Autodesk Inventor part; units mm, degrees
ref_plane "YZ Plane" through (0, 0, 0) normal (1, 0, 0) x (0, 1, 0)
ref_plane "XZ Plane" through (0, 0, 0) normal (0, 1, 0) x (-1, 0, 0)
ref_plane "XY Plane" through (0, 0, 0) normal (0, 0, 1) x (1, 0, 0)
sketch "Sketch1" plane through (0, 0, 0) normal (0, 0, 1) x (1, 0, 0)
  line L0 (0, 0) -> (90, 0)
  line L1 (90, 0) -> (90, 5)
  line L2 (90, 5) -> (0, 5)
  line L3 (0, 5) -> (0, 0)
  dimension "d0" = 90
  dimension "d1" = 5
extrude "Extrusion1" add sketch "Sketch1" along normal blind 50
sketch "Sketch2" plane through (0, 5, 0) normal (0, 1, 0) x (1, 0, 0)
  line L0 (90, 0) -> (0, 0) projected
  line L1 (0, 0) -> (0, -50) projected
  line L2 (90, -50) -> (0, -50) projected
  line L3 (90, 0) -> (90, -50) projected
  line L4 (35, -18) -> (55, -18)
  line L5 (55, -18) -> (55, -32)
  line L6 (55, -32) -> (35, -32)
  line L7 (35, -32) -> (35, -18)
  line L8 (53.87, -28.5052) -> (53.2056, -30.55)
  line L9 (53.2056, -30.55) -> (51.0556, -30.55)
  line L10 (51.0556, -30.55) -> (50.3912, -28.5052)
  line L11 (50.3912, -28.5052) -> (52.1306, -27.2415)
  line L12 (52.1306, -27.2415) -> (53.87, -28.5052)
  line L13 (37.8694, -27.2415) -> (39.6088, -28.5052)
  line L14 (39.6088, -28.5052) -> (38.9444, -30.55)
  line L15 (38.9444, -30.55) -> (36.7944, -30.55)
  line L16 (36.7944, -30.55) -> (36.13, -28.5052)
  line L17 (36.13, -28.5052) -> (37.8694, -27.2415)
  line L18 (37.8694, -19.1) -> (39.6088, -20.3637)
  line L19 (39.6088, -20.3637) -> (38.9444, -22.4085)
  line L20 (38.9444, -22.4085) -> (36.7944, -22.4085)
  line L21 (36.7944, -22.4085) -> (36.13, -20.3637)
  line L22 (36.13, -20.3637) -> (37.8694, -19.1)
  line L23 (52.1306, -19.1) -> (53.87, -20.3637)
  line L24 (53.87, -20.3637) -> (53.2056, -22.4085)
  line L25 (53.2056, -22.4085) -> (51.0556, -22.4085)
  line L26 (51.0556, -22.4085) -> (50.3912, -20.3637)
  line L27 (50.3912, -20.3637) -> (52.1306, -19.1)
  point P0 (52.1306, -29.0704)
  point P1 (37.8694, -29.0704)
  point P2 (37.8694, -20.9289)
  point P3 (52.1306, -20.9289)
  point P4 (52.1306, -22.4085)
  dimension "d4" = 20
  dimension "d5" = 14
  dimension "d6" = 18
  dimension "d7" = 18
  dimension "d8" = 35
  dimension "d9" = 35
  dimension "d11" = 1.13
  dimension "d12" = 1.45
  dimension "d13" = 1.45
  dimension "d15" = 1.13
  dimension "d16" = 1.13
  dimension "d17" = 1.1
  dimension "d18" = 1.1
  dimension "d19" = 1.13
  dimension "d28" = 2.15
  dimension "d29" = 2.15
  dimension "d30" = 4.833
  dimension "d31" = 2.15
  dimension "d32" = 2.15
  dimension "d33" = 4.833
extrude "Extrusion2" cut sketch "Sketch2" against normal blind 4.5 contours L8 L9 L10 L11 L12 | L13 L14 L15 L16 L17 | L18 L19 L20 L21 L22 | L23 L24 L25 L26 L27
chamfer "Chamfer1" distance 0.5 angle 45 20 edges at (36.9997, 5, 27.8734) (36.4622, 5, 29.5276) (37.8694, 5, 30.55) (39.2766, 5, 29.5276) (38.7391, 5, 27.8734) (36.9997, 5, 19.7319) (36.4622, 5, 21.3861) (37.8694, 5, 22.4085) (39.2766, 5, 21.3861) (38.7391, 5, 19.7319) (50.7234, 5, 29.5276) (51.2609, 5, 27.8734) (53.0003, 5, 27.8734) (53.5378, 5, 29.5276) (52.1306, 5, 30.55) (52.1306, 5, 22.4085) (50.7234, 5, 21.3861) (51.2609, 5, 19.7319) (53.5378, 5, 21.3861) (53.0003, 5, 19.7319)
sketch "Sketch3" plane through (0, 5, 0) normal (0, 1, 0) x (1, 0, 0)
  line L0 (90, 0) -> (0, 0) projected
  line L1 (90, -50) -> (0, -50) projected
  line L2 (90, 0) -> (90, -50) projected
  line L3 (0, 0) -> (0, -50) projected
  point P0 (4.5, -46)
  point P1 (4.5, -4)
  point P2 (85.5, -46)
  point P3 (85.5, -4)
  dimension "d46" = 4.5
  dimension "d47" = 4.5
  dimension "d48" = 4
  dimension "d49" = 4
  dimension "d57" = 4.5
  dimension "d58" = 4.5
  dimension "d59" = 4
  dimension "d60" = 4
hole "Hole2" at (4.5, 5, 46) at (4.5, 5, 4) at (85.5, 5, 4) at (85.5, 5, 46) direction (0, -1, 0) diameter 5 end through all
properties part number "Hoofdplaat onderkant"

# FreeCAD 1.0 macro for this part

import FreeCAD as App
import Part
import Sketcher
Q = App.Units.Quantity


def edges_at(feature, points):
    """Names of the edges that pass closest to the given points."""
    edges = feature.Shape.Edges
    near = lambda p: min(range(len(edges)), key=lambda i: edges[i].distToShape(Part.Vertex(*p))[0])
    return sorted({f"Edge{near(p) + 1}" for p in points})

doc = App.newDocument("Part")
body = doc.addObject("PartDesign::Body", "Body")

sketch1 = doc.addObject("Sketcher::SketchObject", "Sketch")
body.addObject(sketch1)
sketch1.AttachmentSupport = (doc.XY_Plane, [""])
sketch1.MapMode = "FlatFace"
sketch1.addGeometry([
    Part.LineSegment(App.Vector(0, 5, 0), App.Vector(0, 0, 0)),
    Part.LineSegment(App.Vector(0, 0, 0), App.Vector(90, 0, 0)),
    Part.LineSegment(App.Vector(90, 0, 0), App.Vector(90, 5, 0)),
    Part.LineSegment(App.Vector(90, 5, 0), App.Vector(0, 5, 0)),
], False)
sketch1.addConstraint([
    Sketcher.Constraint("Coincident", 0, 2, 1, 1),
    Sketcher.Constraint("Coincident", 1, 2, 2, 1),
    Sketcher.Constraint("Coincident", 2, 2, 3, 1),
    Sketcher.Constraint("Coincident", 3, 2, 0, 1),
    Sketcher.Constraint("Vertical", 0),
    Sketcher.Constraint("Horizontal", 1),
    Sketcher.Constraint("Vertical", 2),
    Sketcher.Constraint("Horizontal", 3),
    Sketcher.Constraint("Coincident", 0, 2, -1, 1),
    Sketcher.Constraint("DistanceX", 1, 1, 1, 2, 90.0),
    Sketcher.Constraint("DistanceY", 0, 2, 0, 1, 5.0),
])
pad1 = doc.addObject("PartDesign::Pad", "Pad")
body.addObject(pad1)
pad1.Profile = sketch1
pad1.Length = 50

sketch2 = doc.addObject("Sketcher::SketchObject", "Sketch001")
body.addObject(sketch2)
sketch2.AttachmentSupport = (doc.XZ_Plane, [""])
sketch2.MapMode = "FlatFace"
sketch2.AttachmentOffset = App.Placement(App.Vector(0, 0, -5), App.Rotation())
sketch2.addGeometry([
    Part.LineSegment(App.Vector(53.2, 30.6, 0), App.Vector(53.9, 28.5, 0)),
    Part.LineSegment(App.Vector(53.9, 28.5, 0), App.Vector(52.1, 27.2, 0)),
    Part.LineSegment(App.Vector(52.1, 27.2, 0), App.Vector(50.4, 28.5, 0)),
    Part.LineSegment(App.Vector(50.4, 28.5, 0), App.Vector(51.1, 30.6, 0)),
    Part.LineSegment(App.Vector(51.1, 30.6, 0), App.Vector(53.2, 30.6, 0)),
    Part.LineSegment(App.Vector(39.6, 28.5, 0), App.Vector(37.9, 27.2, 0)),
    Part.LineSegment(App.Vector(37.9, 27.2, 0), App.Vector(36.1, 28.5, 0)),
    Part.LineSegment(App.Vector(36.1, 28.5, 0), App.Vector(36.8, 30.6, 0)),
    Part.LineSegment(App.Vector(36.8, 30.6, 0), App.Vector(38.9, 30.6, 0)),
    Part.LineSegment(App.Vector(38.9, 30.6, 0), App.Vector(39.6, 28.5, 0)),
    Part.LineSegment(App.Vector(39.6, 20.4, 0), App.Vector(37.9, 19.1, 0)),
    Part.LineSegment(App.Vector(37.9, 19.1, 0), App.Vector(36.1, 20.4, 0)),
    Part.LineSegment(App.Vector(36.1, 20.4, 0), App.Vector(36.8, 22.4, 0)),
    Part.LineSegment(App.Vector(36.8, 22.4, 0), App.Vector(38.9, 22.4, 0)),
    Part.LineSegment(App.Vector(38.9, 22.4, 0), App.Vector(39.6, 20.4, 0)),
    Part.LineSegment(App.Vector(53.9, 20.4, 0), App.Vector(52.1, 19.1, 0)),
    Part.LineSegment(App.Vector(52.1, 19.1, 0), App.Vector(50.4, 20.4, 0)),
    Part.LineSegment(App.Vector(50.4, 20.4, 0), App.Vector(51.1, 22.4, 0)),
    Part.LineSegment(App.Vector(51.1, 22.4, 0), App.Vector(53.2, 22.4, 0)),
    Part.LineSegment(App.Vector(53.2, 22.4, 0), App.Vector(53.9, 20.4, 0)),
], False)
sketch2.addConstraint([
    Sketcher.Constraint("Coincident", 0, 2, 1, 1),
    Sketcher.Constraint("Coincident", 1, 2, 2, 1),
    Sketcher.Constraint("Coincident", 2, 2, 3, 1),
    Sketcher.Constraint("Coincident", 3, 2, 4, 1),
    Sketcher.Constraint("Coincident", 4, 2, 0, 1),
    Sketcher.Constraint("Coincident", 5, 2, 6, 1),
    Sketcher.Constraint("Coincident", 6, 2, 7, 1),
    Sketcher.Constraint("Coincident", 7, 2, 8, 1),
    Sketcher.Constraint("Coincident", 8, 2, 9, 1),
    Sketcher.Constraint("Coincident", 9, 2, 5, 1),
    Sketcher.Constraint("Coincident", 10, 2, 11, 1),
    Sketcher.Constraint("Coincident", 11, 2, 12, 1),
    Sketcher.Constraint("Coincident", 12, 2, 13, 1),
    Sketcher.Constraint("Coincident", 13, 2, 14, 1),
    Sketcher.Constraint("Coincident", 14, 2, 10, 1),
    Sketcher.Constraint("Coincident", 15, 2, 16, 1),
    Sketcher.Constraint("Coincident", 16, 2, 17, 1),
    Sketcher.Constraint("Coincident", 17, 2, 18, 1),
    Sketcher.Constraint("Coincident", 18, 2, 19, 1),
    Sketcher.Constraint("Coincident", 19, 2, 15, 1),
    Sketcher.Constraint("Horizontal", 4),
    Sketcher.Constraint("Horizontal", 8),
    Sketcher.Constraint("Horizontal", 13),
    Sketcher.Constraint("Horizontal", 18),
    Sketcher.Constraint("Parallel", 1, 5),
    Sketcher.Constraint("Parallel", 2, 6),
    Sketcher.Constraint("Parallel", 3, 7),
    Sketcher.Constraint("Parallel", 0, 9),
    Sketcher.Constraint("Parallel", 5, 10),
    Sketcher.Constraint("Parallel", 6, 11),
    Sketcher.Constraint("Parallel", 7, 12),
    Sketcher.Constraint("Parallel", 9, 14),
    Sketcher.Constraint("Parallel", 10, 15),
    Sketcher.Constraint("Parallel", 11, 16),
    Sketcher.Constraint("Parallel", 12, 17),
    Sketcher.Constraint("Parallel", 14, 19),
    Sketcher.Constraint("Horizontal", 0, 2, 2, 2),
    Sketcher.Constraint("Horizontal", 1, 2, 5, 2),
    Sketcher.Constraint("Horizontal", 2, 2, 6, 2),
    Sketcher.Constraint("Horizontal", 4, 2, 7, 2),
    Sketcher.Constraint("Horizontal", 6, 2, 9, 2),
    Sketcher.Constraint("Horizontal", 11, 2, 14, 2),
    Sketcher.Constraint("Horizontal", 10, 2, 15, 2),
    Sketcher.Constraint("Horizontal", 14, 2, 16, 2),
    Sketcher.Constraint("Horizontal", 13, 2, 17, 2),
    Sketcher.Constraint("Horizontal", 16, 2, 19, 2),
    Sketcher.Constraint("Vertical", 5, 2, 10, 2),
    Sketcher.Constraint("Vertical", 6, 2, 11, 2),
    Sketcher.Constraint("Vertical", 7, 2, 12, 2),
    Sketcher.Constraint("Vertical", 1, 2, 15, 2),
    Sketcher.Constraint("Equal", 0, 1),
    Sketcher.Constraint("Equal", 1, 2),
    Sketcher.Constraint("Equal", 2, 3),
    Sketcher.Constraint("DistanceX", 4, 1, 4, 2, 2.15),
    Sketcher.Constraint("Distance", 0, 2.15),
    Sketcher.Constraint("Angle", 0, Q("-72 deg")),
    Sketcher.Constraint("DistanceY", 12, 2, 5, 2, 4.833),
    Sketcher.Constraint("DistanceY", -1, 1, 10, 2, 19.1),
    Sketcher.Constraint("DistanceX", -1, 1, 0, 2, 53.87),
    Sketcher.Constraint("DistanceX", -1, 1, 6, 2, 36.13),
])
pocket1 = doc.addObject("PartDesign::Pocket", "Pocket")
body.addObject(pocket1)
pocket1.Profile = sketch2
pocket1.Length = 4.5
pocket1.Reversed = True
doc.recompute()

chamfer = doc.addObject("PartDesign::Chamfer", "Chamfer")
body.addObject(chamfer)
chamfer.Base = (pocket1, edges_at(pocket1, [
    (37, 5, 27.873),
    (36.462, 5, 29.528),
    (37.869, 5, 30.55),
    (39.277, 5, 29.528),
    (38.739, 5, 27.873),
    (37, 5, 19.732),
    (36.462, 5, 21.386),
    (37.869, 5, 22.409),
    (39.277, 5, 21.386),
    (38.739, 5, 19.732),
    (50.723, 5, 29.528),
    (51.261, 5, 27.873),
    (53, 5, 27.873),
    (53.538, 5, 29.528),
    (52.131, 5, 30.55),
    (52.131, 5, 22.409),
    (50.723, 5, 21.386),
    (51.261, 5, 19.732),
    (53.538, 5, 21.386),
    (53, 5, 19.732),
]))
chamfer.Size = 0.5

sketch3 = doc.addObject("Sketcher::SketchObject", "Sketch002")
body.addObject(sketch3)
sketch3.AttachmentSupport = (doc.XZ_Plane, [""])
sketch3.MapMode = "FlatFace"
sketch3.AttachmentOffset = App.Placement(App.Vector(0, 0, -5), App.Rotation())
sketch3.addGeometry([
    Part.Circle(App.Vector(4.5, 46, 0), App.Vector(0, 0, 1), 2.5),
    Part.Circle(App.Vector(4.5, 4, 0), App.Vector(0, 0, 1), 2.5),
    Part.Circle(App.Vector(85.5, 4, 0), App.Vector(0, 0, 1), 2.5),
    Part.Circle(App.Vector(85.5, 46, 0), App.Vector(0, 0, 1), 2.5),
], False)
sketch3.addConstraint([
    Sketcher.Constraint("Equal", 0, 1),
    Sketcher.Constraint("Equal", 1, 2),
    Sketcher.Constraint("Equal", 2, 3),
    Sketcher.Constraint("Horizontal", 1, 3, 2, 3),
    Sketcher.Constraint("Horizontal", 0, 3, 3, 3),
    Sketcher.Constraint("Vertical", 0, 3, 1, 3),
    Sketcher.Constraint("Vertical", 2, 3, 3, 3),
    Sketcher.Constraint("Diameter", 0, 5.0),
    Sketcher.Constraint("DistanceY", -1, 1, 0, 3, 46.0),
    Sketcher.Constraint("DistanceY", -1, 1, 1, 3, 4.0),
    Sketcher.Constraint("DistanceX", 1, 3, 2, 3, 81.0),
    Sketcher.Constraint("DistanceX", -1, 1, 0, 3, 4.5),
])
doc.recompute()
hole = doc.addObject("PartDesign::Hole", "Hole")
body.addObject(hole)
hole.Profile = sketch3
hole.ThreadType = "None"
hole.Diameter = 5
hole.DepthType = "ThroughAll"
hole.Reversed = True

doc.recompute()
